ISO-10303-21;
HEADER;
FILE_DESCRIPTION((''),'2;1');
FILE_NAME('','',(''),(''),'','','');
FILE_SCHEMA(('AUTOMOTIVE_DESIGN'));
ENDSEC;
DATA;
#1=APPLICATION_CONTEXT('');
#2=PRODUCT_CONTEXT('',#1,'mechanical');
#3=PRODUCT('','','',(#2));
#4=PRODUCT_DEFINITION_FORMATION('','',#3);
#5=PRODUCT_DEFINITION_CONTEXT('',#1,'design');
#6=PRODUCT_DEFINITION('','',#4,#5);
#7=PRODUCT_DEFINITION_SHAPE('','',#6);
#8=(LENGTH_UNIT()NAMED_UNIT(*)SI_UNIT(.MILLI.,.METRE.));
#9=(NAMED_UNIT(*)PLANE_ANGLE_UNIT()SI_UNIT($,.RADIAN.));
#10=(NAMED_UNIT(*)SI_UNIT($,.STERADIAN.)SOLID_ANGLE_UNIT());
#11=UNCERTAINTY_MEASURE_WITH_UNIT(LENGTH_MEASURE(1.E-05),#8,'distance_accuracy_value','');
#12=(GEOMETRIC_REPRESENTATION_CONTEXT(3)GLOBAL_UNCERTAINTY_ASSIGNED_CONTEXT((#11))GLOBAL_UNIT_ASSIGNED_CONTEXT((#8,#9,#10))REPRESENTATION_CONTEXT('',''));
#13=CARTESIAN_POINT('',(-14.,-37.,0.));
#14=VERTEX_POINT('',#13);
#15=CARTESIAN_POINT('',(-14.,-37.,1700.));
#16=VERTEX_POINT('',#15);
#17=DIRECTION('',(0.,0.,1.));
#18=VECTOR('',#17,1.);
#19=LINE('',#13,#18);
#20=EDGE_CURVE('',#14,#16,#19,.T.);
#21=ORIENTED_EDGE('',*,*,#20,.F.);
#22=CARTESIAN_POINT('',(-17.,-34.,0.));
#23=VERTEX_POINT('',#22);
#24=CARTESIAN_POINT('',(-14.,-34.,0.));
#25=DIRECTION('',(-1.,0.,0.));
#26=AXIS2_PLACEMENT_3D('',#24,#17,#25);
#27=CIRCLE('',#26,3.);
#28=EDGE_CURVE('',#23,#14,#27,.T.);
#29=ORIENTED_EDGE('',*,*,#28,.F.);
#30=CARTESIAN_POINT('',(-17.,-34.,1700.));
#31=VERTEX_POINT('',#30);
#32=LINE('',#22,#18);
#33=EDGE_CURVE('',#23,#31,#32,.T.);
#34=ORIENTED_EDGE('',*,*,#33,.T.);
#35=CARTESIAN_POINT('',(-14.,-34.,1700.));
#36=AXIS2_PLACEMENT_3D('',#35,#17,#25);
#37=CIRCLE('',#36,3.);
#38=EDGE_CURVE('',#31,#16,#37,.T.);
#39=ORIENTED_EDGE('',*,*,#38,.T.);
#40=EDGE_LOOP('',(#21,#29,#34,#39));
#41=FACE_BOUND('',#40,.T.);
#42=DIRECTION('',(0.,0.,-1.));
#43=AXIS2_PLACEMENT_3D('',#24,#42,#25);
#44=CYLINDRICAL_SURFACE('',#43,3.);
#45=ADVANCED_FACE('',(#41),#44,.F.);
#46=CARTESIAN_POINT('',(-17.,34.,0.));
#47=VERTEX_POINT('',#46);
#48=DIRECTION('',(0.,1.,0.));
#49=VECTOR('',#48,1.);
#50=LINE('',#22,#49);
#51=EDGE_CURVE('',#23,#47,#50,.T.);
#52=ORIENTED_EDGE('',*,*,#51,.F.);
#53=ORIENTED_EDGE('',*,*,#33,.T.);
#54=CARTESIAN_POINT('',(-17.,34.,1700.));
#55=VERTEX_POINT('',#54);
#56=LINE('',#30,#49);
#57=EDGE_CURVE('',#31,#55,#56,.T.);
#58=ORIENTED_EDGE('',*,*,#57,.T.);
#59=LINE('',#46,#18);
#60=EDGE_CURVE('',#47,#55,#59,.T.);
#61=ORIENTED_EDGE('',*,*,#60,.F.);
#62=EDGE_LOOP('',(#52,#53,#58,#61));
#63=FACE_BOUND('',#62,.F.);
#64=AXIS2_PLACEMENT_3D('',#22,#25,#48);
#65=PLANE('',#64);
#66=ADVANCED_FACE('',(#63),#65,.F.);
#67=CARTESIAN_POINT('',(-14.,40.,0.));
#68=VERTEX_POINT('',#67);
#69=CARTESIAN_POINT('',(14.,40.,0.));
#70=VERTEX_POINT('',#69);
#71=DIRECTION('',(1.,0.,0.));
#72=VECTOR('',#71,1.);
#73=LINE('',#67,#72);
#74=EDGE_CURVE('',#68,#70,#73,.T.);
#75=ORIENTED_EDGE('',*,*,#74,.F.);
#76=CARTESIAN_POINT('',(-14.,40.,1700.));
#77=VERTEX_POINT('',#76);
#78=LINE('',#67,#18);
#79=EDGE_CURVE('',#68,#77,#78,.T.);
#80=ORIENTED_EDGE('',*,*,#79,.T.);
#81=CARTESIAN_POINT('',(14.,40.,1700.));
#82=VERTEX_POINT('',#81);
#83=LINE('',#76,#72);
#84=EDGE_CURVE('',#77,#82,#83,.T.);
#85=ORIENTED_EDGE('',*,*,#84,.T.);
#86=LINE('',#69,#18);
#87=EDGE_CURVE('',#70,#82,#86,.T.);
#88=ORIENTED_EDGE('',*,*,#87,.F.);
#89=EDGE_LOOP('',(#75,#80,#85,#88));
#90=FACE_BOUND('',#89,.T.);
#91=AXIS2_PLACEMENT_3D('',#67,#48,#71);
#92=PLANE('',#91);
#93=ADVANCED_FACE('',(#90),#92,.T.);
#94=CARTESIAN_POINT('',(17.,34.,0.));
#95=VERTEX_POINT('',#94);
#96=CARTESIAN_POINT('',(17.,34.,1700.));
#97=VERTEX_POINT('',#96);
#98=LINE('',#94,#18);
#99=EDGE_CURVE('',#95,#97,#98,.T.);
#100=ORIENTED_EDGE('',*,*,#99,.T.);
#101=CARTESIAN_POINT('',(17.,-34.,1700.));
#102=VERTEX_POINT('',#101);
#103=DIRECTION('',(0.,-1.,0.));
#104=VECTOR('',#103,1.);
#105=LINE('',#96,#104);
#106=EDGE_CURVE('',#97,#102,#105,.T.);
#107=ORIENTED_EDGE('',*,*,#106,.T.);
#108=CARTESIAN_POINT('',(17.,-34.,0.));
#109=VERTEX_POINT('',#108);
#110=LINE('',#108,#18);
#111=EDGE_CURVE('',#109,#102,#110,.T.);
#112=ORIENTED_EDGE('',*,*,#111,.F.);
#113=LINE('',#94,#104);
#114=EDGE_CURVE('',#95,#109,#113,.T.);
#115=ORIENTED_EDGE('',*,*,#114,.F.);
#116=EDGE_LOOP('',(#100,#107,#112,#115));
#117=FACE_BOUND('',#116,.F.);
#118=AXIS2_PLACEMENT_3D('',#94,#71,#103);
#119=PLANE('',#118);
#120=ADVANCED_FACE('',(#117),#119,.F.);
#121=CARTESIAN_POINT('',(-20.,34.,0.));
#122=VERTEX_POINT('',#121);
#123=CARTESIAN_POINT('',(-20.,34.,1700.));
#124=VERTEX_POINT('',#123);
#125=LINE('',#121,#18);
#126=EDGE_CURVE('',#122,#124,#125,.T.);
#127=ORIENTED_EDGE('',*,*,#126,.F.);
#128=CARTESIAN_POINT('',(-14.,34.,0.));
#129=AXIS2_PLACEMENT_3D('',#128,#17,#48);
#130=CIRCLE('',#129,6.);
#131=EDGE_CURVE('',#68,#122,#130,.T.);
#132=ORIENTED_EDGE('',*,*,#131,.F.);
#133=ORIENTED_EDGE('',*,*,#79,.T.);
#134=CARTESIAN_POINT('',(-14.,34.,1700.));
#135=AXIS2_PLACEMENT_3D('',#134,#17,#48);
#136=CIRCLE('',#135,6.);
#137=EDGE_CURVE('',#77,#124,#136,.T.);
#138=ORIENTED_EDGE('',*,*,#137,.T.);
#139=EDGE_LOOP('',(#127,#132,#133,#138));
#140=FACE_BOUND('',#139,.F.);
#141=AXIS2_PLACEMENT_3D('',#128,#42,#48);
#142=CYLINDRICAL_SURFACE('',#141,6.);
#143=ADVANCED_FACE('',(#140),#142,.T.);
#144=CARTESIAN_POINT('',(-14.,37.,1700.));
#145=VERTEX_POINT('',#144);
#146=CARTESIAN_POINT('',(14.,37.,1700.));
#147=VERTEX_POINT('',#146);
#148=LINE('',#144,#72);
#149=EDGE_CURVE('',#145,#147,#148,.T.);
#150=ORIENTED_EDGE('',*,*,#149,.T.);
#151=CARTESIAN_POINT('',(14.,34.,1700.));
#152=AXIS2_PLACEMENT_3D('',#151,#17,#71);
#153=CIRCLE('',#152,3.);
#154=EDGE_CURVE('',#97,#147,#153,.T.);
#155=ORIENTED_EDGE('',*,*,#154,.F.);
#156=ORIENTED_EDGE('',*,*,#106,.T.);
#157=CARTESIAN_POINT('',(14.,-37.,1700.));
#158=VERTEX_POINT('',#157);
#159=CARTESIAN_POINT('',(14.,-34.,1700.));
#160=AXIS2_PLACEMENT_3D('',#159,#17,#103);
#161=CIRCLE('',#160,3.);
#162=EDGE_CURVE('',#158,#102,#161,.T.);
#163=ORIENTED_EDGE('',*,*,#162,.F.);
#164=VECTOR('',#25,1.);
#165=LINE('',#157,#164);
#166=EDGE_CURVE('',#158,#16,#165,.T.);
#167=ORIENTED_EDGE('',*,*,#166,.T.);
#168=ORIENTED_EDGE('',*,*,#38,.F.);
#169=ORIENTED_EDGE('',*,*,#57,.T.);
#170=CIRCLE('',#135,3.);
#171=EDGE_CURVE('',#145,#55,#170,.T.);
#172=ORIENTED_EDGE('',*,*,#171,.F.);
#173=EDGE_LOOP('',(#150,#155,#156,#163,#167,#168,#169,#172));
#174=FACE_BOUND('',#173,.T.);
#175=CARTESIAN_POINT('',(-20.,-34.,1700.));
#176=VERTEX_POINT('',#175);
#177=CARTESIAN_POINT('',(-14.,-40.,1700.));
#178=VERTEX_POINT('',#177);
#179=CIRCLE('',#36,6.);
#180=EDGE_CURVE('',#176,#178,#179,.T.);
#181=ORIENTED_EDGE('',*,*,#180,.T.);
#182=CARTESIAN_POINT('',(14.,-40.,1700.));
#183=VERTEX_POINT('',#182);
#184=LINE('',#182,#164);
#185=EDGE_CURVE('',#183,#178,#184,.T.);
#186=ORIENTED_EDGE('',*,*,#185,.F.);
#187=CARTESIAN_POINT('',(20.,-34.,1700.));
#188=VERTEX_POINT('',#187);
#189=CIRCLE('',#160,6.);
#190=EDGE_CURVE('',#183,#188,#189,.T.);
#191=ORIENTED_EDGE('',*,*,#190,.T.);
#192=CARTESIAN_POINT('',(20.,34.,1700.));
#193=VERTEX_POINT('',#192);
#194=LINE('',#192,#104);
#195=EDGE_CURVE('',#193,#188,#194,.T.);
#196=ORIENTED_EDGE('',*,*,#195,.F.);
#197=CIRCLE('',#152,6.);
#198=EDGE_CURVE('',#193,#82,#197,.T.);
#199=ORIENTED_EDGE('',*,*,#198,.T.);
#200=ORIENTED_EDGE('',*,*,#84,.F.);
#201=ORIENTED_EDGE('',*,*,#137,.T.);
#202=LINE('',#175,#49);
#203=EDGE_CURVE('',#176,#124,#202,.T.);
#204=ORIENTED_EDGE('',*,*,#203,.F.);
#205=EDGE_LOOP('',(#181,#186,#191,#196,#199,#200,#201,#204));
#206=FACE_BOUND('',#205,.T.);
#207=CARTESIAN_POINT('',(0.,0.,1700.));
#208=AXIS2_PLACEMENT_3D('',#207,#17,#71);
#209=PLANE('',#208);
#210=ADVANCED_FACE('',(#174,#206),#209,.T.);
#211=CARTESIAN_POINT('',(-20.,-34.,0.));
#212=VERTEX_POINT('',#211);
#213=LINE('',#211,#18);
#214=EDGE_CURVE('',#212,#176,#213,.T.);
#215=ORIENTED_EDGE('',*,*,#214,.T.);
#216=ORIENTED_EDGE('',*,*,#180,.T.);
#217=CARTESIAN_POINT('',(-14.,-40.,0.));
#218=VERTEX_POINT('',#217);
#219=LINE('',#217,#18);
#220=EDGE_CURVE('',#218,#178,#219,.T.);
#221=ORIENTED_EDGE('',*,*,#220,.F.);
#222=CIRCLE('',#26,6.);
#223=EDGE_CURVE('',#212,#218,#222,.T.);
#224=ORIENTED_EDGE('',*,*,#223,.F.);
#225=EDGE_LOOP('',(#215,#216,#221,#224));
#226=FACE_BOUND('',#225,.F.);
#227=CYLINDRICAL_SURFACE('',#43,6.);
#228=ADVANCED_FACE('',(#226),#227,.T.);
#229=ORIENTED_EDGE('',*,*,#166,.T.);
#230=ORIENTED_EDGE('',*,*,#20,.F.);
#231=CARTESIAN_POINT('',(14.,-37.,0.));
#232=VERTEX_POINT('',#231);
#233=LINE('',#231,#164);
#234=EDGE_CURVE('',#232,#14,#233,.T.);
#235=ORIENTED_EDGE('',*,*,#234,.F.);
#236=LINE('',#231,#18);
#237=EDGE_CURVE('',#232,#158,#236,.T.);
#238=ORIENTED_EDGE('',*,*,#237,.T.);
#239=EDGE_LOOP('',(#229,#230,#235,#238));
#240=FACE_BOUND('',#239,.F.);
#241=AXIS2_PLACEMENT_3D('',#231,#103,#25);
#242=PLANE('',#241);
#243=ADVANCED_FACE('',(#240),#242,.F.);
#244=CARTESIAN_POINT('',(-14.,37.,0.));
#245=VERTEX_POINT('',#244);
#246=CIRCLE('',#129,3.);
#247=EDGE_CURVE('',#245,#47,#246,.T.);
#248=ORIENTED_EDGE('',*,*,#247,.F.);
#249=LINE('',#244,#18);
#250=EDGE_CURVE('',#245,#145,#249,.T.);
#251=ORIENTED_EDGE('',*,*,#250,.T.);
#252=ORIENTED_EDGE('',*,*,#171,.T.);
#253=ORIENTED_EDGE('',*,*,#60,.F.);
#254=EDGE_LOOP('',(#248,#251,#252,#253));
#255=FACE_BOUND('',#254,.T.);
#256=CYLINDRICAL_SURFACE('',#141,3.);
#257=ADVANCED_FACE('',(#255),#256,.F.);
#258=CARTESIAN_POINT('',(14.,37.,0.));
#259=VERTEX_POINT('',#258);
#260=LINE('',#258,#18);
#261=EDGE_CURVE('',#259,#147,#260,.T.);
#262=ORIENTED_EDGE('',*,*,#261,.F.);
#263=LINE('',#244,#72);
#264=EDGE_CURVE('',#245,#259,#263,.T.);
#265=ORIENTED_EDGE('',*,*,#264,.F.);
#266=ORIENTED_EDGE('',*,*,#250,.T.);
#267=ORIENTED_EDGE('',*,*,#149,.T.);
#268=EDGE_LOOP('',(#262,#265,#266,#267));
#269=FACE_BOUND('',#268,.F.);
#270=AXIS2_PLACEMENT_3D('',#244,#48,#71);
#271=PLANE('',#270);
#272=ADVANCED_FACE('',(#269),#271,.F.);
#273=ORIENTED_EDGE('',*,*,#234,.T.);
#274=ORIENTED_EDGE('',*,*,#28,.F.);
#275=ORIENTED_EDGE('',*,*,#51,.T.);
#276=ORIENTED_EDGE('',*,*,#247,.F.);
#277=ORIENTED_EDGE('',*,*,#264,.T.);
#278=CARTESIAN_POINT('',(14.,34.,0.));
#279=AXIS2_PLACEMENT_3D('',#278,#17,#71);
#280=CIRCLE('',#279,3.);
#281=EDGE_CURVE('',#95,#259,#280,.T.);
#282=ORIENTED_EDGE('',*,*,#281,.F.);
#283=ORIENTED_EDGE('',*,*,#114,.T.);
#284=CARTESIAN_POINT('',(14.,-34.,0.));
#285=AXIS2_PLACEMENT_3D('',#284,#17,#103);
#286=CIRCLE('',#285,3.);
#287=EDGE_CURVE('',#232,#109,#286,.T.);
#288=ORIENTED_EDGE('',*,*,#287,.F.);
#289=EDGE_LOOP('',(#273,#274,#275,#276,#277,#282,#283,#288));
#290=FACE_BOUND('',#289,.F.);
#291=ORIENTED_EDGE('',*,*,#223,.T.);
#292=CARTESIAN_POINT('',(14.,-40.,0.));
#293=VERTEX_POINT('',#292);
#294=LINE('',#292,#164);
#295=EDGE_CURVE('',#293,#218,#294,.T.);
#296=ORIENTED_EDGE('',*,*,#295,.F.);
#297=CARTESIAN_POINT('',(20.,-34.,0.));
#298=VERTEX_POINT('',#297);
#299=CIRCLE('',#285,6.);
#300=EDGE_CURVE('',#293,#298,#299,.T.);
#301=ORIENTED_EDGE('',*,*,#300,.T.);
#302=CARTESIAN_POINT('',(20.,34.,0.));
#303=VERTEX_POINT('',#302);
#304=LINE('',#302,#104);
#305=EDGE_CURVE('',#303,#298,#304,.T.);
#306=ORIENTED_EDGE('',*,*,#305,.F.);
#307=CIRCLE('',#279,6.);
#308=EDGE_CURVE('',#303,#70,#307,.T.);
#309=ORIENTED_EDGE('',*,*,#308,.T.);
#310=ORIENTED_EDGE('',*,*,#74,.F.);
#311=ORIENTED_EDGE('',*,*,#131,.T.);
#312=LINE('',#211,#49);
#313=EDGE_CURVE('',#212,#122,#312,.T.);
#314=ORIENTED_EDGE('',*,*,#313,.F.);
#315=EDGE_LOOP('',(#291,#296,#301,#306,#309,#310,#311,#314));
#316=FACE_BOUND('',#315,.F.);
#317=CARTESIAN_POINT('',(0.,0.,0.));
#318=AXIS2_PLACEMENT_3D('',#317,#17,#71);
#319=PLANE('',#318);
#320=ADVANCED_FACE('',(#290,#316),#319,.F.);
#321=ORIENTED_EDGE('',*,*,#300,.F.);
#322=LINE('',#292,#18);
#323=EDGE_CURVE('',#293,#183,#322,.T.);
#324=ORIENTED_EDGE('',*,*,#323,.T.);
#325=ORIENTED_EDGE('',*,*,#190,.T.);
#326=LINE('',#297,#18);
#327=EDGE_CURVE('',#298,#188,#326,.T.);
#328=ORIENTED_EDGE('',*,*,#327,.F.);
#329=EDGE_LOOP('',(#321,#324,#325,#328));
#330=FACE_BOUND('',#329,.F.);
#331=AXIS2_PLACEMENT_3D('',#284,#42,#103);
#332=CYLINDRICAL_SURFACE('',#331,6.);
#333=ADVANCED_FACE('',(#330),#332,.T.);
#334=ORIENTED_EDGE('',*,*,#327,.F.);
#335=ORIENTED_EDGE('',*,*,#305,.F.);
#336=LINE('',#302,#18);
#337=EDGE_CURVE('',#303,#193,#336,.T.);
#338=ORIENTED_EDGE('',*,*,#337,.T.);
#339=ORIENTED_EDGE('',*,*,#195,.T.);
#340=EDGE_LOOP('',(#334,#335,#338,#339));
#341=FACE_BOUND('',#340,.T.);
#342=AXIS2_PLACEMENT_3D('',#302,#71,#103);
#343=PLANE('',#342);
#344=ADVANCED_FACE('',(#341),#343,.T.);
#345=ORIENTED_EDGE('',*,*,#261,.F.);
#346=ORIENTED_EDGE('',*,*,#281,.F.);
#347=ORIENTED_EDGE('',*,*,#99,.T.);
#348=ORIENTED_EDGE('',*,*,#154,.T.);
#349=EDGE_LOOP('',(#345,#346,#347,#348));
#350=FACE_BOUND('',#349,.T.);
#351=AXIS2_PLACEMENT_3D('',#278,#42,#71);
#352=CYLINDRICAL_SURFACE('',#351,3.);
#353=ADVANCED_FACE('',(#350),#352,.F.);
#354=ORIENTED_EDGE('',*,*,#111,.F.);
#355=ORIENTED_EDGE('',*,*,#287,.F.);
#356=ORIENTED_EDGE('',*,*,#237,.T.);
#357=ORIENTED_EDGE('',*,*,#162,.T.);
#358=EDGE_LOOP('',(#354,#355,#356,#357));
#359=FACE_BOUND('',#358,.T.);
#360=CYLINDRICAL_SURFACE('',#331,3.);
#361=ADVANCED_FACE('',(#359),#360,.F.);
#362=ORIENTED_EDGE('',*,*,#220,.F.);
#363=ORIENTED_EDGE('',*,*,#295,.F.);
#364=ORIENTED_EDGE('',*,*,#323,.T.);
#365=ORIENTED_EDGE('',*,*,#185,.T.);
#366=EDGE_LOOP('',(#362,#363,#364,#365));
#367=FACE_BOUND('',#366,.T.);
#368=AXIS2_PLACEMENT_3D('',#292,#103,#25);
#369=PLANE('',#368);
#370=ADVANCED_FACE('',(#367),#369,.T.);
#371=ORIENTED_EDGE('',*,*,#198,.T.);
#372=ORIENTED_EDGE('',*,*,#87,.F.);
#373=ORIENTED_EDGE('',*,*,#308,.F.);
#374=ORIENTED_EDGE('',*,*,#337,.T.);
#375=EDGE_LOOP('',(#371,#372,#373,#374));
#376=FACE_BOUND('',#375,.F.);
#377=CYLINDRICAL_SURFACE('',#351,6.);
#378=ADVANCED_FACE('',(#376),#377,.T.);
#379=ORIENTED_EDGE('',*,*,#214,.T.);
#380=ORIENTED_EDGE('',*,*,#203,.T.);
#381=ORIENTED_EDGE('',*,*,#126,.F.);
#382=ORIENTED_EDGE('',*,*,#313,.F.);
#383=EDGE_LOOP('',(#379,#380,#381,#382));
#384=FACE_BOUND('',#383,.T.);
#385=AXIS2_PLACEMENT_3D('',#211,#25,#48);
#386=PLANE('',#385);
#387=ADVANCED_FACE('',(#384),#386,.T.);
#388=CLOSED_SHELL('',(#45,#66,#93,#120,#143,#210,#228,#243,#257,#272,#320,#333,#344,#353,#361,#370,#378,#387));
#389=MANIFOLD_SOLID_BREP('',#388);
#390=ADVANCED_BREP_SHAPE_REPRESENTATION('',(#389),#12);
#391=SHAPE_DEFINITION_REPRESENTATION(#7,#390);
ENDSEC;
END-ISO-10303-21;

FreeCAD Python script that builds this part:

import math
import FreeCAD as App
import Part
import Sketcher
from FreeCAD import Vector

doc = App.newDocument("Part")
body = doc.addObject("PartDesign::Body", "Body")

# Sketch on XY plane
sketch1 = body.newObject("Sketcher::SketchObject", "Sketch")
sketch1.AttachmentSupport = (doc.getObject("XY_Plane"), [""])
sketch1.MapMode = "FlatFace"
sketch1.addGeometry(Part.LineSegment(Vector(-20, 34, 0), Vector(-20, -34, 0)), False)
sketch1.addGeometry(Part.ArcOfCircle(Part.Circle(Vector(-14, -34, 0), Vector(0, 0, 1), 6), math.radians(180), math.radians(270)), False)
sketch1.addGeometry(Part.LineSegment(Vector(-14, -40, 0), Vector(14, -40, 0)), False)
sketch1.addGeometry(Part.ArcOfCircle(Part.Circle(Vector(14, -34, 0), Vector(0, 0, 1), 6), math.radians(-90), math.radians(0)), False)
sketch1.addGeometry(Part.LineSegment(Vector(20, -34, 0), Vector(20, 34, 0)), False)
sketch1.addGeometry(Part.ArcOfCircle(Part.Circle(Vector(14, 34, 0), Vector(0, 0, 1), 6), math.radians(0), math.radians(90)), False)
sketch1.addGeometry(Part.LineSegment(Vector(14, 40, 0), Vector(-14, 40, 0)), False)
sketch1.addGeometry(Part.ArcOfCircle(Part.Circle(Vector(-14, 34, 0), Vector(0, 0, 1), 6), math.radians(90), math.radians(180)), False)
sketch1.addGeometry(Part.ArcOfCircle(Part.Circle(Vector(-14, 34, 0), Vector(0, 0, 1), 3), math.radians(90), math.radians(180)), False)
sketch1.addGeometry(Part.LineSegment(Vector(-14, 37, 0), Vector(14, 37, 0)), False)
sketch1.addGeometry(Part.ArcOfCircle(Part.Circle(Vector(14, 34, 0), Vector(0, 0, 1), 3), math.radians(0), math.radians(90)), False)
sketch1.addGeometry(Part.LineSegment(Vector(17, 34, 0), Vector(17, -34, 0)), False)
sketch1.addGeometry(Part.ArcOfCircle(Part.Circle(Vector(14, -34, 0), Vector(0, 0, 1), 3), math.radians(-90), math.radians(0)), False)
sketch1.addGeometry(Part.LineSegment(Vector(14, -37, 0), Vector(-14, -37, 0)), False)
sketch1.addGeometry(Part.ArcOfCircle(Part.Circle(Vector(-14, -34, 0), Vector(0, 0, 1), 3), math.radians(180), math.radians(270)), False)
sketch1.addGeometry(Part.LineSegment(Vector(-17, -34, 0), Vector(-17, 34, 0)), False)
sketch1.addConstraint(Sketcher.Constraint("Tangent", 0, 2, 1, 1))
sketch1.addConstraint(Sketcher.Constraint("Tangent", 1, 2, 2, 1))
sketch1.addConstraint(Sketcher.Constraint("Tangent", 2, 2, 3, 1))
sketch1.addConstraint(Sketcher.Constraint("Tangent", 3, 2, 4, 1))
sketch1.addConstraint(Sketcher.Constraint("Tangent", 4, 2, 5, 1))
sketch1.addConstraint(Sketcher.Constraint("Tangent", 5, 2, 6, 1))
sketch1.addConstraint(Sketcher.Constraint("Tangent", 6, 2, 7, 1))
sketch1.addConstraint(Sketcher.Constraint("Tangent", 7, 2, 0, 1))
sketch1.addConstraint(Sketcher.Constraint("Tangent", 8, 1, 9, 1))
sketch1.addConstraint(Sketcher.Constraint("Tangent", 9, 2, 10, 2))
sketch1.addConstraint(Sketcher.Constraint("Tangent", 10, 1, 11, 1))
sketch1.addConstraint(Sketcher.Constraint("Tangent", 11, 2, 12, 2))
sketch1.addConstraint(Sketcher.Constraint("Tangent", 12, 1, 13, 1))
sketch1.addConstraint(Sketcher.Constraint("Tangent", 13, 2, 14, 2))
sketch1.addConstraint(Sketcher.Constraint("Tangent", 14, 1, 15, 1))
sketch1.addConstraint(Sketcher.Constraint("Tangent", 15, 2, 8, 2))
sketch1.addConstraint(Sketcher.Constraint("Vertical", 0))
sketch1.addConstraint(Sketcher.Constraint("Horizontal", 2))
sketch1.addConstraint(Sketcher.Constraint("Vertical", 4))
sketch1.addConstraint(Sketcher.Constraint("Horizontal", 6))
sketch1.addConstraint(Sketcher.Constraint("Horizontal", 9))
sketch1.addConstraint(Sketcher.Constraint("Vertical", 11))
sketch1.addConstraint(Sketcher.Constraint("Horizontal", 13))
sketch1.addConstraint(Sketcher.Constraint("Vertical", 15))
sketch1.addConstraint(Sketcher.Constraint("Coincident", 8, 3, 7, 3))
sketch1.addConstraint(Sketcher.Constraint("Coincident", 10, 3, 5, 3))
sketch1.addConstraint(Sketcher.Constraint("Coincident", 12, 3, 3, 3))
sketch1.addConstraint(Sketcher.Constraint("Equal", 1, 3))
sketch1.addConstraint(Sketcher.Constraint("Equal", 3, 5))
sketch1.addConstraint(Sketcher.Constraint("Equal", 5, 7))
sketch1.addConstraint(Sketcher.Constraint("Equal", 12, 14))
sketch1.addConstraint(Sketcher.Constraint("Symmetric", 1, 3, 5, 3, -1, 1))
sketch1.addConstraint(Sketcher.Constraint("Radius", 1, 6.0))
sketch1.addConstraint(Sketcher.Constraint("Radius", 8, 3.0))
sketch1.addConstraint(Sketcher.Constraint("DistanceX", 0, 2, -1, 1, 20.0))
sketch1.addConstraint(Sketcher.Constraint("DistanceY", 1, 2, -1, 1, 40.0))
pad1 = body.newObject("PartDesign::Pad", "Pad")
pad1.Profile = sketch1
pad1.Length = 1700

doc.recompute()
